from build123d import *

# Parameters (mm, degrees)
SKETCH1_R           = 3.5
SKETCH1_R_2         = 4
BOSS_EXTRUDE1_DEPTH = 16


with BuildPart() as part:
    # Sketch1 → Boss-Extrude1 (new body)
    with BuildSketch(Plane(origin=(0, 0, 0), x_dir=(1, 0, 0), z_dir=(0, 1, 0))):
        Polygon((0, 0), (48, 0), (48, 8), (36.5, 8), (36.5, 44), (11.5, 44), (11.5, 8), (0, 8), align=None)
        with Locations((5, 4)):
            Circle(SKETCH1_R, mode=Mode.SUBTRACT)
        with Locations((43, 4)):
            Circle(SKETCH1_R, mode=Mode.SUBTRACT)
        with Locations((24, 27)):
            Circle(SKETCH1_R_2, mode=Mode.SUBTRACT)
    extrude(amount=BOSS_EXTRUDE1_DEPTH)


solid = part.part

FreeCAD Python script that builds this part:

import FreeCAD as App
import Part
import Sketcher
Q = App.Units.Quantity

doc = App.newDocument("Part")
body = doc.addObject("PartDesign::Body", "Body")

# Sketch on XZ plane
sketch1 = body.newObject("Sketcher::SketchObject", "Sketch")
sketch1.AttachmentSupport = (doc.getObject("XZ_Plane"), [""])
sketch1.MapMode = "FlatFace"
sketch1.addGeometry([
    Part.LineSegment(App.Vector(0, 0, 0), App.Vector(48, 0, 0)),  # 0
    Part.LineSegment(App.Vector(48, 0, 0), App.Vector(48, -8, 0)),  # 1
    Part.LineSegment(App.Vector(48, -8, 0), App.Vector(36.5, -8, 0)),  # 2
    Part.LineSegment(App.Vector(36.5, -8, 0), App.Vector(36.5, -44, 0)),  # 3
    Part.LineSegment(App.Vector(36.5, -44, 0), App.Vector(11.5, -44, 0)),  # 4
    Part.LineSegment(App.Vector(11.5, -44, 0), App.Vector(11.5, -8, 0)),  # 5
    Part.LineSegment(App.Vector(11.5, -8, 0), App.Vector(0, -8, 0)),  # 6
    Part.LineSegment(App.Vector(0, -8, 0), App.Vector(0, 0, 0)),  # 7
    Part.Circle(App.Vector(5, -4, 0), App.Vector(0, 0, 1), 3.5),  # 8
    Part.Circle(App.Vector(43, -4, 0), App.Vector(0, 0, 1), 3.5),  # 9
    Part.Circle(App.Vector(24, -27, 0), App.Vector(0, 0, 1), 4),  # 10
], False)
sketch1.addConstraint([
    Sketcher.Constraint("Coincident", 0, 2, 1, 1),
    Sketcher.Constraint("Coincident", 1, 2, 2, 1),
    Sketcher.Constraint("Coincident", 2, 2, 3, 1),
    Sketcher.Constraint("Coincident", 3, 2, 4, 1),
    Sketcher.Constraint("Coincident", 4, 2, 5, 1),
    Sketcher.Constraint("Coincident", 5, 2, 6, 1),
    Sketcher.Constraint("Coincident", 6, 2, 7, 1),
    Sketcher.Constraint("Coincident", 7, 2, 0, 1),
    Sketcher.Constraint("Horizontal", 0),
    Sketcher.Constraint("Vertical", 1),
    Sketcher.Constraint("Horizontal", 2),
    Sketcher.Constraint("Vertical", 3),
    Sketcher.Constraint("Horizontal", 4),
    Sketcher.Constraint("Vertical", 5),
    Sketcher.Constraint("Horizontal", 6),
    Sketcher.Constraint("Vertical", 7),
    Sketcher.Constraint("Coincident", 7, 2, -1, 1),
    Sketcher.Constraint("Equal", 8, 9),
    Sketcher.Constraint("Horizontal", 8, 3, 9, 3),
    Sketcher.Constraint("Horizontal", 2, 2, 5, 2),
    Sketcher.Constraint("Equal", 2, 6),
    Sketcher.Constraint("Diameter", 8, Q("7 mm")),
    Sketcher.Constraint("Diameter", 10, Q("8 mm")),
    Sketcher.Constraint("DistanceX", 0, 1, 0, 2, Q("48 mm")),
    Sketcher.Constraint("DistanceX", 4, 2, 4, 1, Q("25 mm")),
    Sketcher.Constraint("DistanceY", 1, 2, 1, 1, Q("8 mm")),
    Sketcher.Constraint("DistanceY", 3, 2, 3, 1, Q("36 mm")),
    Sketcher.Constraint("DistanceX", -1, 1, 8, 3, Q("5 mm")),
    Sketcher.Constraint("DistanceY", 8, 3, -1, 1, Q("4 mm")),
    Sketcher.Constraint("DistanceX", -1, 1, 9, 3, Q("43 mm")),
    Sketcher.Constraint("DistanceX", -1, 1, 10, 3, Q("24 mm")),
    Sketcher.Constraint("DistanceY", 10, 3, -1, 1, Q("27 mm")),
])
pad1 = body.newObject("PartDesign::Pad", "Pad")
pad1.Profile = sketch1
pad1.Length = 16
pad1.Reversed = True

doc.recompute()
